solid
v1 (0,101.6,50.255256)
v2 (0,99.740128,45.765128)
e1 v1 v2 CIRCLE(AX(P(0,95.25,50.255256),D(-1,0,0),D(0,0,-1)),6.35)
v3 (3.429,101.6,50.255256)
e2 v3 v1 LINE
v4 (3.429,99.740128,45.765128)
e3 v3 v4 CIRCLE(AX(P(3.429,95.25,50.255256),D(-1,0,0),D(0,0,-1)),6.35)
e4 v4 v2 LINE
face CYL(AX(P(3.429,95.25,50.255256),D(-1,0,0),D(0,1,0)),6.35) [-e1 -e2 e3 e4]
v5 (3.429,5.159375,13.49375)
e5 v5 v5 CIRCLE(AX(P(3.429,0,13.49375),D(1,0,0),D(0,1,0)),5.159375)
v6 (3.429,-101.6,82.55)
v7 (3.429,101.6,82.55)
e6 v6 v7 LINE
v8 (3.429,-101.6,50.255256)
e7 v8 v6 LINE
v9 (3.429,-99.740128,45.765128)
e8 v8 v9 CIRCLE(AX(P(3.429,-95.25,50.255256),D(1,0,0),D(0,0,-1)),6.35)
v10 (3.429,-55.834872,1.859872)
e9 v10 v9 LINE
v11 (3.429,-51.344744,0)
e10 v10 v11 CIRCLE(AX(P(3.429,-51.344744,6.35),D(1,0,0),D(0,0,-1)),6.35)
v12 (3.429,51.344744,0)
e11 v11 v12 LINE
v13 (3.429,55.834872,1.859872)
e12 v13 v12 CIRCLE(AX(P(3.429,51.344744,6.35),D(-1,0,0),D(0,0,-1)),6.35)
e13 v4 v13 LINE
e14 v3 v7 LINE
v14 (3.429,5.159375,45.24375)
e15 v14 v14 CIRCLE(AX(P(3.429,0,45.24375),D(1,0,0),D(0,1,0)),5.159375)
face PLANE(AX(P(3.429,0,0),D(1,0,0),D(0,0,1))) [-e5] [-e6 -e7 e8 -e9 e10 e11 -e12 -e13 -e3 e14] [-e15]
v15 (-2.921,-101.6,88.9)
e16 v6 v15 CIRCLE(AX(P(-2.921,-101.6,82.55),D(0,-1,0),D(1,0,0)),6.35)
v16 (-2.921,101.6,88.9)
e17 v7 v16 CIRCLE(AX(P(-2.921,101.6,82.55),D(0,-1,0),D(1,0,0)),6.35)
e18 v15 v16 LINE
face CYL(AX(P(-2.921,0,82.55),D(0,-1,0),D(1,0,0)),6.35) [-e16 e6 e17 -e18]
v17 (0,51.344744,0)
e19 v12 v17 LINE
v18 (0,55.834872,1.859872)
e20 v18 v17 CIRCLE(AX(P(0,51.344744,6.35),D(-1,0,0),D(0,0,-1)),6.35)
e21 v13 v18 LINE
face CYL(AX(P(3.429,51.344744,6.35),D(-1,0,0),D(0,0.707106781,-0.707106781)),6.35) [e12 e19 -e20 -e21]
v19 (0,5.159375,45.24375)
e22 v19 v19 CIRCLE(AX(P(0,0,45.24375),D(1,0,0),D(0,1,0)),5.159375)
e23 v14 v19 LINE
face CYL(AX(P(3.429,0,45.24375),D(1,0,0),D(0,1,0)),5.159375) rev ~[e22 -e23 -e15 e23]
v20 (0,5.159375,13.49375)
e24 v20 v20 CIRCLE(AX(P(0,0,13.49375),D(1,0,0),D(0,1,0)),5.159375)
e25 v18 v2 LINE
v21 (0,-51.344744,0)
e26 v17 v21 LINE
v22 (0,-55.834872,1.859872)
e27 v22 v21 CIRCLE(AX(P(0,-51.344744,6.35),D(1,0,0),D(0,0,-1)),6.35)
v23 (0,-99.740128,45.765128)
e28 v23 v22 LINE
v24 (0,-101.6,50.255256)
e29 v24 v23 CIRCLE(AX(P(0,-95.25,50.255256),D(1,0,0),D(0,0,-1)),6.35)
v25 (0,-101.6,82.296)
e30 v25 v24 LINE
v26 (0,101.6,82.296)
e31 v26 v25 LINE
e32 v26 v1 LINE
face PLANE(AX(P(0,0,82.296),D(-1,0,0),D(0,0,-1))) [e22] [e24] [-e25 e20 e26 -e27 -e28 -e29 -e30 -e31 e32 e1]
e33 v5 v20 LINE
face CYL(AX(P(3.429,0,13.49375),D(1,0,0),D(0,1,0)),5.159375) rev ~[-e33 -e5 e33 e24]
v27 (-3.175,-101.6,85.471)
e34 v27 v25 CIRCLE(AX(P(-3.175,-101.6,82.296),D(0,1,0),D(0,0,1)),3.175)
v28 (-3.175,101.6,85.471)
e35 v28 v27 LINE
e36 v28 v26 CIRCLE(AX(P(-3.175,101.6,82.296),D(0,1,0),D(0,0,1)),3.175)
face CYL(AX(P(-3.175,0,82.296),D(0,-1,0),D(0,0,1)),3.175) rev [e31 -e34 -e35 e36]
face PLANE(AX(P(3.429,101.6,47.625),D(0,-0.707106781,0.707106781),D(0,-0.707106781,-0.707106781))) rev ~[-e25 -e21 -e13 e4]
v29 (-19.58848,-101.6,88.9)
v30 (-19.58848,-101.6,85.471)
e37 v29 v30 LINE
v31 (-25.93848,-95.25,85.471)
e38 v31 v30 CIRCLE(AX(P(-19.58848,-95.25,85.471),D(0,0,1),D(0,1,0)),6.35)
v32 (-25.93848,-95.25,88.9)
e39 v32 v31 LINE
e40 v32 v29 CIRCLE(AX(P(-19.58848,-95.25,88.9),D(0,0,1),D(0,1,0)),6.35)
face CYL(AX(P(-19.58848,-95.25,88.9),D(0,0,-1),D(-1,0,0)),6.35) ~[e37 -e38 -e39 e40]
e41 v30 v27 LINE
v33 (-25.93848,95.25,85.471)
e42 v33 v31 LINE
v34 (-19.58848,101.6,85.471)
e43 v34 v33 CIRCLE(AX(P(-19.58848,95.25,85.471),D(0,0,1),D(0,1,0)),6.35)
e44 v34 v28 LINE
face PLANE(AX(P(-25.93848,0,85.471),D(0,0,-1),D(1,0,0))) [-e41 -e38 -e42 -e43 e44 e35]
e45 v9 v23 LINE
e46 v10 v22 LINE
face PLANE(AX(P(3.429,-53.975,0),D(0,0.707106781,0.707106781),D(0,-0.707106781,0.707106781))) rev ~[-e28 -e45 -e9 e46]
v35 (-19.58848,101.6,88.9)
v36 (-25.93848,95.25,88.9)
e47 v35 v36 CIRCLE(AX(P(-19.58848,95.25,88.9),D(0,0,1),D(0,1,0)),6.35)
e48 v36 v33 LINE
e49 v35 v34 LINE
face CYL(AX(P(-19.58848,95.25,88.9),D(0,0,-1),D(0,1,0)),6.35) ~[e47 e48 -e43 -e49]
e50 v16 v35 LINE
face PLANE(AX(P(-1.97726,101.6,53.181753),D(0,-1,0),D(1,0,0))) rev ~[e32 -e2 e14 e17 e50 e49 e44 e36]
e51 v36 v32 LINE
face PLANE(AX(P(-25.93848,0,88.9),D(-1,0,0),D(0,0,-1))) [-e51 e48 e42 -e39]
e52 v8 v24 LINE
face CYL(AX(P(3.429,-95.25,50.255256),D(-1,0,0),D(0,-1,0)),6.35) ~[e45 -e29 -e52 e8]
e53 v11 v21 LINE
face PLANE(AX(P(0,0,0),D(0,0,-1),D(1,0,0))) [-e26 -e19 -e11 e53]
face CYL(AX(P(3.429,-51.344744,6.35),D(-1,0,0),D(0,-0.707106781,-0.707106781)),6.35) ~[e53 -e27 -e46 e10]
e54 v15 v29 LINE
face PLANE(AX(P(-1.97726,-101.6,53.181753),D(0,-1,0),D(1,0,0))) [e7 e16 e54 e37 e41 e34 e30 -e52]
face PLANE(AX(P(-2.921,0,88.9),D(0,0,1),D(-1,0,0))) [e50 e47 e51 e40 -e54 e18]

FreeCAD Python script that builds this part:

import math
import FreeCAD as App
import Part
import Sketcher
from FreeCAD import Vector
Q = App.Units.Quantity


def edges_at(feature, points):
    """Names of the edges that pass closest to the given points."""
    edges = feature.Shape.Edges
    near = lambda p: min(range(len(edges)), key=lambda i: edges[i].distToShape(Part.Vertex(*p))[0])
    return sorted({f"Edge{near(p) + 1}" for p in points})

doc = App.newDocument("Part")
body = doc.addObject("PartDesign::Body", "Body")

# Sketch on XZ plane
sketch1 = body.newObject("Sketcher::SketchObject", "Sketch")
sketch1.AttachmentSupport = (doc.getObject("XZ_Plane"), [""])
sketch1.MapMode = "FlatFace"
sketch1.addGeometry([
    Part.LineSegment(Vector(-2.9, 88.9, 0), Vector(-25.9, 88.9, 0)),  # 0
    Part.LineSegment(Vector(-25.9, 88.9, 0), Vector(-25.9, 85.5, 0)),  # 1
    Part.LineSegment(Vector(-25.9, 85.5, 0), Vector(-3.2, 85.5, 0)),  # 2
    Part.ArcOfCircle(Part.Circle(Vector(-3.2, 82.3, 0), Vector(0, 0, 1), 3.2), math.radians(0), math.radians(90)),  # 3
    Part.LineSegment(Vector(0, 82.3, 0), Vector(0, 0, 0)),  # 4
    Part.LineSegment(Vector(0, 0, 0), Vector(3.4, 0, 0)),  # 5
    Part.LineSegment(Vector(3.4, 0, 0), Vector(3.4, 82.5, 0)),  # 6
    Part.ArcOfCircle(Part.Circle(Vector(-2.9, 82.5, 0), Vector(0, 0, 1), 6.3), math.radians(0), math.radians(90)),  # 7
], False)
sketch1.addConstraint([
    Sketcher.Constraint("Coincident", 0, 2, 1, 1),
    Sketcher.Constraint("Coincident", 1, 2, 2, 1),
    Sketcher.Constraint("Tangent", 2, 2, 3, 2),
    Sketcher.Constraint("Tangent", 3, 1, 4, 1),
    Sketcher.Constraint("Coincident", 4, 2, 5, 1),
    Sketcher.Constraint("Coincident", 5, 2, 6, 1),
    Sketcher.Constraint("Tangent", 6, 2, 7, 1),
    Sketcher.Constraint("Tangent", 7, 2, 0, 1),
    Sketcher.Constraint("Horizontal", 0),
    Sketcher.Constraint("Vertical", 1),
    Sketcher.Constraint("Horizontal", 2),
    Sketcher.Constraint("Vertical", 4),
    Sketcher.Constraint("Horizontal", 5),
    Sketcher.Constraint("Vertical", 6),
    Sketcher.Constraint("Coincident", 4, 2, -1, 1),
    Sketcher.Constraint("Equal", 5, 1),
    Sketcher.Constraint("Radius", 7, Q("0.25 in")),
    Sketcher.Constraint("Radius", 3, Q("0.125 in")),
    Sketcher.Constraint("DistanceY", 4, 2, 4, 1, Q("3.24 in")),
    Sketcher.Constraint("DistanceY", 6, 1, 6, 2, Q("3.25 in")),
    Sketcher.Constraint("DistanceX", 0, 2, 0, 1, Q("0.9062 in")),
])
pad1 = body.newObject("PartDesign::Pad", "Pad")
pad1.Profile = sketch1
pad1.Length = Q("8 in")
pad1.Midplane = True

# Sketch on YZ plane
sketch2 = body.newObject("Sketcher::SketchObject", "Sketch001")
sketch2.AttachmentSupport = (doc.getObject("YZ_Plane"), [""])
sketch2.MapMode = "FlatFace"
sketch2.AttachmentOffset = App.Placement(Vector(0, 0, 0.135 * 25.4), App.Rotation())
sketch2.addGeometry([
    Part.LineSegment(Vector(-54, 0, 0), Vector(-102, 48, 0)),  # 0
    Part.LineSegment(Vector(-102, 48, 0), Vector(-102, 0, 0)),  # 1
    Part.LineSegment(Vector(-102, 0, 0), Vector(-54, 0, 0)),  # 2
    Part.LineSegment(Vector(102, 0, 0), Vector(102, 48, 0)),  # 3
    Part.LineSegment(Vector(102, 48, 0), Vector(54, 0, 0)),  # 4
    Part.LineSegment(Vector(54, 0, 0), Vector(102, 0, 0)),  # 5
], False)
sketch2.addConstraint([
    Sketcher.Constraint("Coincident", 0, 2, 1, 1),
    Sketcher.Constraint("Coincident", 1, 2, 2, 1),
    Sketcher.Constraint("Coincident", 2, 2, 0, 1),
    Sketcher.Constraint("Coincident", 3, 2, 4, 1),
    Sketcher.Constraint("Coincident", 4, 2, 5, 1),
    Sketcher.Constraint("Coincident", 5, 2, 3, 1),
    Sketcher.Constraint("Vertical", 1),
    Sketcher.Constraint("Horizontal", 2),
    Sketcher.Constraint("Vertical", 3),
    Sketcher.Constraint("Horizontal", 5),
    Sketcher.Constraint("Symmetric", 2, 2, 4, 2, -1, 1),
    Sketcher.Constraint("Symmetric", 0, 2, 3, 2, -2),
    Sketcher.Constraint("PointOnObject", 1, 2, -1),
    Sketcher.Constraint("Perpendicular", 0, 4),
    Sketcher.Constraint("DistanceX", 0, 2, -1, 1, Q("4 in")),
    Sketcher.Constraint("DistanceX", 2, 1, 2, 2, Q("1.875 in")),
])
pocket1 = body.newObject("PartDesign::Pocket", "Pocket")
pocket1.Profile = sketch2
pocket1.Type = "ThroughAll"
pocket1.Midplane = True
doc.recompute()

fillet = body.newObject("PartDesign::Fillet", "Fillet")
fillet.Base = (pocket1, edges_at(pocket1, [
    (1.714, -101.6, 47.625),
    (-25.938, -101.6, 87.186),
    (1.714, -53.975, 0),
    (1.714, 53.975, 0),
    (1.714, 101.6, 47.625),
    (-25.938, 101.6, 87.186),
]))
fillet.Radius = Q("0.25 in")

# Sketch on YZ plane
sketch3 = body.newObject("Sketcher::SketchObject", "Sketch002")
sketch3.AttachmentSupport = (doc.getObject("YZ_Plane"), [""])
sketch3.MapMode = "FlatFace"
sketch3.AttachmentOffset = App.Placement(Vector(0, 0, 0.135 * 25.4), App.Rotation())
sketch3.addGeometry([
    Part.Circle(Vector(0, 45, 0), Vector(0, 0, 1), 5),
    Part.Circle(Vector(0, 13, 0), Vector(0, 0, 1), 5),
], False)
sketch3.addConstraint([
    Sketcher.Constraint("Equal", 0, 1),
    Sketcher.Constraint("PointOnObject", 0, 3, -2),
    Sketcher.Constraint("PointOnObject", 1, 3, -2),
    Sketcher.Constraint("Diameter", 0, Q("0.40625 in")),
    Sketcher.Constraint("DistanceY", 1, 3, 0, 3, Q("1.25 in")),
    Sketcher.Constraint("DistanceY", -1, 1, 0, 3, Q("1.78125 in")),
])
pocket2 = body.newObject("PartDesign::Pocket", "Pocket001")
pocket2.Profile = sketch3
pocket2.Type = "ThroughAll"
pocket2.Midplane = True

doc.recompute()
